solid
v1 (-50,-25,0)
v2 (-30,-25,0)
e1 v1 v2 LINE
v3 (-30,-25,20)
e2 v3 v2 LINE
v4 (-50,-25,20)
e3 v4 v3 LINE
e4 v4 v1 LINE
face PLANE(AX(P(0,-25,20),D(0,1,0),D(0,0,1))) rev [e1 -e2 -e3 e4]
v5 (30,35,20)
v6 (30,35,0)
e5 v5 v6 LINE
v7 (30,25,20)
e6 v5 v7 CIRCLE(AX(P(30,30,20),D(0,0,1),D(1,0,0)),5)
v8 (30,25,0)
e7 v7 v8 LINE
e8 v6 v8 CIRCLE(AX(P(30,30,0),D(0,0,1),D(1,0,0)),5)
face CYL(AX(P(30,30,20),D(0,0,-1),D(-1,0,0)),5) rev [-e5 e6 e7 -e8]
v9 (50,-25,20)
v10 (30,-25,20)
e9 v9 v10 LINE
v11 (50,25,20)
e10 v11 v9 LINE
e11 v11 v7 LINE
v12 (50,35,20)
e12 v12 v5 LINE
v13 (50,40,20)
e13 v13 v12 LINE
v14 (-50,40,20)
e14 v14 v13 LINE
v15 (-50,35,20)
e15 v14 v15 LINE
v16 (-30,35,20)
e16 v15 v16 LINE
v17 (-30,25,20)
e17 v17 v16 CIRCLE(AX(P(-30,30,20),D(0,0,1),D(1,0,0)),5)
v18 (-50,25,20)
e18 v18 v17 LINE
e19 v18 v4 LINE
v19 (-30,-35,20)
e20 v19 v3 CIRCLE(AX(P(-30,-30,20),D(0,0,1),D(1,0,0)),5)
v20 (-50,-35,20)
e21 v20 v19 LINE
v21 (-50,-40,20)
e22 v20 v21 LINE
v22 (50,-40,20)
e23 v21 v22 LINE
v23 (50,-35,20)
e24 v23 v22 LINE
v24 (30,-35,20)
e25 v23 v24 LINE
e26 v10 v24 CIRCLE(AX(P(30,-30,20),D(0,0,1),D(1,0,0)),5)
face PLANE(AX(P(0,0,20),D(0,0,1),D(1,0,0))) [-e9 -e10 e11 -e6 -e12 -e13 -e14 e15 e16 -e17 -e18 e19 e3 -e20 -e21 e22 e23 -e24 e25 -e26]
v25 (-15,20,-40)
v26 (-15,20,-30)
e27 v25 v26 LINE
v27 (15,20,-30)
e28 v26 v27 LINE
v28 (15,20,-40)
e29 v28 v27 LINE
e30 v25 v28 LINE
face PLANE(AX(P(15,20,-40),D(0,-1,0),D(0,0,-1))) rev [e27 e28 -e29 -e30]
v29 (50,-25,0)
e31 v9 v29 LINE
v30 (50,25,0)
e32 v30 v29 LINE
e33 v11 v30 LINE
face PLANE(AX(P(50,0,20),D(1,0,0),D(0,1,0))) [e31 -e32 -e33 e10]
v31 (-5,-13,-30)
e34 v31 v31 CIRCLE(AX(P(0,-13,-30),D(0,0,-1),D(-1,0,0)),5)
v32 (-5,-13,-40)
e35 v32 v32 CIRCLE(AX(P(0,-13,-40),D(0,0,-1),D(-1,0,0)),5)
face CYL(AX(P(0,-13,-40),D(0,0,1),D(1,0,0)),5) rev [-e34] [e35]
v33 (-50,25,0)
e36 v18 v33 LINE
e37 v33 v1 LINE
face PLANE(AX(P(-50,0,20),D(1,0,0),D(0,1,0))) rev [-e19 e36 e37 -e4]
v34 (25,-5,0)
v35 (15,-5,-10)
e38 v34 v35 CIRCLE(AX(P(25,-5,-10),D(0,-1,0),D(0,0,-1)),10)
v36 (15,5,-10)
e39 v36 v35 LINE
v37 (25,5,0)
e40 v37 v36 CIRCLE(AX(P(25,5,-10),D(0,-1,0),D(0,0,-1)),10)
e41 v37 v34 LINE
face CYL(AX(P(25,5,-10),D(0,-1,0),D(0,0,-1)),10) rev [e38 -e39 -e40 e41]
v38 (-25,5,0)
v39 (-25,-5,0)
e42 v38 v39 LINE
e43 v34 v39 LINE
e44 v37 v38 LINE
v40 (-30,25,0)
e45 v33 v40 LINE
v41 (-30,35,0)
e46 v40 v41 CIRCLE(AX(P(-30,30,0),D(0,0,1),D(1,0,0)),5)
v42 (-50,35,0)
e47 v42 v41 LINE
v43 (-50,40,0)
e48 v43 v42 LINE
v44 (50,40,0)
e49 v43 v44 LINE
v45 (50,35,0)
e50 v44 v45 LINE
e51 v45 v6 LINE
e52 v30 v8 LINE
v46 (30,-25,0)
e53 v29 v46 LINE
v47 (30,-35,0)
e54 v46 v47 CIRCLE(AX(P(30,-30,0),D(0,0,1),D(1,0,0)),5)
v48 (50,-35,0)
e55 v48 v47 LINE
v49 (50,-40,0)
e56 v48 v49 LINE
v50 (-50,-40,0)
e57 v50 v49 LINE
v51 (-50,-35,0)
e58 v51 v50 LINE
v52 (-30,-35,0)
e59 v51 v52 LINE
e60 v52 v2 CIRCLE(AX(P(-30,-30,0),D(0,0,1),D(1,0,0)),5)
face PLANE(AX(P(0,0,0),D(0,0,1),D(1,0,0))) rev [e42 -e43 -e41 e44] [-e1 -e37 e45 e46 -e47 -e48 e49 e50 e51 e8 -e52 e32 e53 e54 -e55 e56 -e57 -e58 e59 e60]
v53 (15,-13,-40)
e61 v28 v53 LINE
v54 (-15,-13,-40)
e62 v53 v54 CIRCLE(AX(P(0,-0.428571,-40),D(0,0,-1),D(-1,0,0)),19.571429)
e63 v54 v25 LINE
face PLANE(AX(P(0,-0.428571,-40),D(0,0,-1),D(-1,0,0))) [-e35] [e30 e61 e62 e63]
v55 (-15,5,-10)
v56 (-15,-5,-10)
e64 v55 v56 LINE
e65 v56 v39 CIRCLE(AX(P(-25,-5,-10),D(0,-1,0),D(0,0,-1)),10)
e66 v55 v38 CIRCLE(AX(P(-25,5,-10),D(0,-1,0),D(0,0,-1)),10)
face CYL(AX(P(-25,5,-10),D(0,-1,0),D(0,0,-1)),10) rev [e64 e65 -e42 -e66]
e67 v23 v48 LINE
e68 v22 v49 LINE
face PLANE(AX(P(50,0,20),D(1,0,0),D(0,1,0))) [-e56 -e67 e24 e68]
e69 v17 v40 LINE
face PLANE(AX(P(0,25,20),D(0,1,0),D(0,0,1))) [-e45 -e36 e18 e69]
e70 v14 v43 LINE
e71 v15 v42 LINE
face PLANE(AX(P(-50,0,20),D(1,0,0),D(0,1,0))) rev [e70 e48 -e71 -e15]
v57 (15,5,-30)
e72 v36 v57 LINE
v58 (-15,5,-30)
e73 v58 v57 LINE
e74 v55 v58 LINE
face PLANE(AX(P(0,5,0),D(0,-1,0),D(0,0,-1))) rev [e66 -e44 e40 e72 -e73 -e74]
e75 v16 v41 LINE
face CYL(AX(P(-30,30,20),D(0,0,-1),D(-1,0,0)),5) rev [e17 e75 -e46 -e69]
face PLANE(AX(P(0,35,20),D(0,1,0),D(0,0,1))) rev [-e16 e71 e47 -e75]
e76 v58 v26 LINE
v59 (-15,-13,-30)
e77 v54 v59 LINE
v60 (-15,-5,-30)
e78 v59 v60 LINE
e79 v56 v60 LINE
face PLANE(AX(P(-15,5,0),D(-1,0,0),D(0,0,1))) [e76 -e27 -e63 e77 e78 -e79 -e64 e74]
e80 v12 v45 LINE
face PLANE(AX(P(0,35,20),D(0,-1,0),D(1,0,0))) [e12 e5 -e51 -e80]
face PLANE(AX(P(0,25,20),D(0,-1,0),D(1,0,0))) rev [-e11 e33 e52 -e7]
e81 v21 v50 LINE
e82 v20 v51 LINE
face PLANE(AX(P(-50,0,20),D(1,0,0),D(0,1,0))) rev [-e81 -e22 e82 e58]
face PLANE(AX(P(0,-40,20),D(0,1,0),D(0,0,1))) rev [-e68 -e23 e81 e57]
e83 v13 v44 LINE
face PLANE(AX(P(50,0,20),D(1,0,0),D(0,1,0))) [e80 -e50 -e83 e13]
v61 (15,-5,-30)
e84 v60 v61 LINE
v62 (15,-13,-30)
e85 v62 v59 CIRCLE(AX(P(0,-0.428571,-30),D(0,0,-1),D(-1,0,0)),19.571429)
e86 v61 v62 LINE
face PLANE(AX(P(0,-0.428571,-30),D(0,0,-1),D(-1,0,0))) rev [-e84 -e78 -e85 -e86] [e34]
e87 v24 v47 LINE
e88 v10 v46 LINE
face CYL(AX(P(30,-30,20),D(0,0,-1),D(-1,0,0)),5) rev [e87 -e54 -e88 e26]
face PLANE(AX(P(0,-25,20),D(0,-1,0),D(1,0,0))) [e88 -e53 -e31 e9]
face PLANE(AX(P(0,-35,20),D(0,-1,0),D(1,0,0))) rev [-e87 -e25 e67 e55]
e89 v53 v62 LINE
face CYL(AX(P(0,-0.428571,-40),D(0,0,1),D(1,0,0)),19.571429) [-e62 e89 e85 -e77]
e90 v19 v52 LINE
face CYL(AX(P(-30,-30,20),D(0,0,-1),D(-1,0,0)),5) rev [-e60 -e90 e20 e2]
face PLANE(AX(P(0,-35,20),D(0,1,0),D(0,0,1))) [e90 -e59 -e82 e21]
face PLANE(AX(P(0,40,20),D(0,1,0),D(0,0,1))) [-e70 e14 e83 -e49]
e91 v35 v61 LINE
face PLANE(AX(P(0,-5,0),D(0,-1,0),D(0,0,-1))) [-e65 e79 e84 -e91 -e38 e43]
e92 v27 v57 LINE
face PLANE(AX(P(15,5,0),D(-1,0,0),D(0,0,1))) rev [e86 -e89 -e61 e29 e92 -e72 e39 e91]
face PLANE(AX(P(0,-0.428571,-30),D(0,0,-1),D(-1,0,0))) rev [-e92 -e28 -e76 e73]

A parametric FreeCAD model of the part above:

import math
import FreeCAD as App
import Part
import Sketcher
from FreeCAD import Vector
Q = App.Units.Quantity

doc = App.newDocument("Part")
body = doc.addObject("PartDesign::Body", "Body")

# Sketch on XY plane
sketch1 = body.newObject("Sketcher::SketchObject", "Sketch")
sketch1.AttachmentSupport = (doc.getObject("XY_Plane"), [""])
sketch1.MapMode = "FlatFace"
sketch1.addGeometry([
    Part.LineSegment(Vector(50, 40, 0), Vector(-50, 40, 0)),  # 0
    Part.LineSegment(Vector(-50, 40, 0), Vector(-50, 35, 0)),  # 1
    Part.LineSegment(Vector(-50, 35, 0), Vector(-30, 35, 0)),  # 2
    Part.ArcOfCircle(Part.Circle(Vector(-30, 30, 0), Vector(0, 0, 1), 5), math.radians(-90), math.radians(90)),  # 3
    Part.LineSegment(Vector(-30, 25, 0), Vector(-50, 25, 0)),  # 4
    Part.LineSegment(Vector(-50, 25, 0), Vector(-50, -25, 0)),  # 5
    Part.LineSegment(Vector(-50, -25, 0), Vector(-30, -25, 0)),  # 6
    Part.ArcOfCircle(Part.Circle(Vector(-30, -30, 0), Vector(0, 0, 1), 5), math.radians(-90), math.radians(90)),  # 7
    Part.LineSegment(Vector(-30, -35, 0), Vector(-50, -35, 0)),  # 8
    Part.LineSegment(Vector(-50, -35, 0), Vector(-50, -40, 0)),  # 9
    Part.LineSegment(Vector(-50, -40, 0), Vector(50, -40, 0)),  # 10
    Part.LineSegment(Vector(50, -40, 0), Vector(50, -35, 0)),  # 11
    Part.LineSegment(Vector(50, -35, 0), Vector(30, -35, 0)),  # 12
    Part.ArcOfCircle(Part.Circle(Vector(30, -30, 0), Vector(0, 0, 1), 5), math.radians(90), math.radians(270)),  # 13
    Part.LineSegment(Vector(30, -25, 0), Vector(50, -25, 0)),  # 14
    Part.LineSegment(Vector(50, -25, 0), Vector(50, 25, 0)),  # 15
    Part.LineSegment(Vector(50, 25, 0), Vector(30, 25, 0)),  # 16
    Part.ArcOfCircle(Part.Circle(Vector(30, 30, 0), Vector(0, 0, 1), 5), math.radians(90), math.radians(270)),  # 17
    Part.LineSegment(Vector(30, 35, 0), Vector(50, 35, 0)),  # 18
    Part.LineSegment(Vector(50, 35, 0), Vector(50, 40, 0)),  # 19
], False)
sketch1.addConstraint([
    Sketcher.Constraint("Coincident", 0, 2, 1, 1),
    Sketcher.Constraint("Coincident", 1, 2, 2, 1),
    Sketcher.Constraint("Tangent", 2, 2, 3, 2),
    Sketcher.Constraint("Tangent", 3, 1, 4, 1),
    Sketcher.Constraint("Coincident", 4, 2, 5, 1),
    Sketcher.Constraint("Coincident", 5, 2, 6, 1),
    Sketcher.Constraint("Tangent", 6, 2, 7, 2),
    Sketcher.Constraint("Tangent", 7, 1, 8, 1),
    Sketcher.Constraint("Coincident", 8, 2, 9, 1),
    Sketcher.Constraint("Coincident", 9, 2, 10, 1),
    Sketcher.Constraint("Coincident", 10, 2, 11, 1),
    Sketcher.Constraint("Coincident", 11, 2, 12, 1),
    Sketcher.Constraint("Tangent", 12, 2, 13, 2),
    Sketcher.Constraint("Tangent", 13, 1, 14, 1),
    Sketcher.Constraint("Coincident", 14, 2, 15, 1),
    Sketcher.Constraint("Coincident", 15, 2, 16, 1),
    Sketcher.Constraint("Tangent", 16, 2, 17, 2),
    Sketcher.Constraint("Tangent", 17, 1, 18, 1),
    Sketcher.Constraint("Coincident", 18, 2, 19, 1),
    Sketcher.Constraint("Coincident", 19, 2, 0, 1),
    Sketcher.Constraint("Horizontal", 0),
    Sketcher.Constraint("Vertical", 1),
    Sketcher.Constraint("Horizontal", 2),
    Sketcher.Constraint("Horizontal", 4),
    Sketcher.Constraint("Vertical", 5),
    Sketcher.Constraint("Horizontal", 6),
    Sketcher.Constraint("Horizontal", 8),
    Sketcher.Constraint("Vertical", 9),
    Sketcher.Constraint("Horizontal", 10),
    Sketcher.Constraint("Vertical", 11),
    Sketcher.Constraint("Horizontal", 12),
    Sketcher.Constraint("Horizontal", 14),
    Sketcher.Constraint("Vertical", 15),
    Sketcher.Constraint("Horizontal", 16),
    Sketcher.Constraint("Horizontal", 18),
    Sketcher.Constraint("Vertical", 19),
    Sketcher.Constraint("Equal", 3, 7),
    Sketcher.Constraint("Equal", 7, 13),
    Sketcher.Constraint("Equal", 13, 17),
    Sketcher.Constraint("Symmetric", 3, 3, 13, 3, -1, 1),
    Sketcher.Constraint("Symmetric", 7, 3, 17, 3, -1, 1),
    Sketcher.Constraint("Symmetric", 0, 2, 10, 2, -1, 1),
    Sketcher.Constraint("Symmetric", 7, 3, 13, 3, -2),
    Sketcher.Constraint("Vertical", 1, 2, 4, 2),
    Sketcher.Constraint("Vertical", 5, 2, 8, 2),
    Sketcher.Constraint("Vertical", 11, 2, 14, 2),
    Sketcher.Constraint("Vertical", 15, 2, 18, 2),
    Sketcher.Constraint("Radius", 3, Q("5 mm")),
    Sketcher.Constraint("DistanceX", 0, 2, 0, 1, Q("100 mm")),
    Sketcher.Constraint("DistanceX", 2, 1, 2, 2, Q("20 mm")),
    Sketcher.Constraint("DistanceY", 1, 2, 1, 1, Q("5 mm")),
    Sketcher.Constraint("DistanceY", 5, 2, 5, 1, Q("50 mm")),
])
pad1 = body.newObject("PartDesign::Pad", "Pad")
pad1.Profile = sketch1
pad1.Length = 20

# Sketch on XZ plane
sketch2 = body.newObject("Sketcher::SketchObject", "Sketch001")
sketch2.AttachmentSupport = (doc.getObject("XZ_Plane"), [""])
sketch2.MapMode = "FlatFace"
sketch2.AttachmentOffset = App.Placement(Vector(0, 0, 5), App.Rotation())
sketch2.addGeometry([
    Part.ArcOfCircle(Part.Circle(Vector(-25, -10, 0), Vector(0, 0, 1), 10), math.radians(0), math.radians(90)),  # 0
    Part.LineSegment(Vector(-15, -10, 0), Vector(-15, -30, 0)),  # 1
    Part.LineSegment(Vector(-15, -30, 0), Vector(15, -30, 0)),  # 2
    Part.LineSegment(Vector(15, -30, 0), Vector(15, -10, 0)),  # 3
    Part.ArcOfCircle(Part.Circle(Vector(25, -10, 0), Vector(0, 0, 1), 10), math.radians(90), math.radians(180)),  # 4
    Part.LineSegment(Vector(25, 0, 0), Vector(-25, 0, 0)),  # 5
], False)
sketch2.addConstraint([
    Sketcher.Constraint("Tangent", 0, 1, 1, 1),
    Sketcher.Constraint("Coincident", 1, 2, 2, 1),
    Sketcher.Constraint("Coincident", 2, 2, 3, 1),
    Sketcher.Constraint("Tangent", 3, 2, 4, 2),
    Sketcher.Constraint("Tangent", 4, 1, 5, 1),
    Sketcher.Constraint("Tangent", 5, 2, 0, 2),
    Sketcher.Constraint("Vertical", 1),
    Sketcher.Constraint("Horizontal", 2),
    Sketcher.Constraint("Vertical", 3),
    Sketcher.Constraint("Horizontal", 5),
    Sketcher.Constraint("Equal", 0, 4),
    Sketcher.Constraint("Symmetric", 4, 1, 5, 2, -1, 1),
    Sketcher.Constraint("Radius", 0, Q("10 mm")),
    Sketcher.Constraint("DistanceX", 2, 1, 2, 2, Q("30 mm")),
    Sketcher.Constraint("DistanceY", 1, 2, 1, 1, Q("20 mm")),
])
pad2 = body.newObject("PartDesign::Pad", "Pad001")
pad2.Profile = sketch2
pad2.Length = 10
pad2.Reversed = True

# Sketch on XY plane
sketch3 = body.newObject("Sketcher::SketchObject", "Sketch002")
sketch3.AttachmentSupport = (doc.getObject("XY_Plane"), [""])
sketch3.MapMode = "FlatFace"
sketch3.AttachmentOffset = App.Placement(Vector(0, 0, -30), App.Rotation())
sketch3.addGeometry([
    Part.LineSegment(Vector(-15, 20, 0), Vector(15, 20, 0)),  # 0
    Part.LineSegment(Vector(15, 20, 0), Vector(15, -13, 0)),  # 1
    Part.ArcOfCircle(Part.Circle(Vector(0, 0, 0), Vector(0, 0, 1), 20), math.radians(-140), math.radians(-40)),  # 2
    Part.LineSegment(Vector(-15, -13, 0), Vector(-15, 20, 0)),  # 3
    Part.Circle(Vector(0, -13, 0), Vector(0, 0, 1), 5),  # 4
], False)
sketch3.addConstraint([
    Sketcher.Constraint("Coincident", 0, 2, 1, 1),
    Sketcher.Constraint("Coincident", 1, 2, 2, 2),
    Sketcher.Constraint("Coincident", 2, 1, 3, 1),
    Sketcher.Constraint("Coincident", 3, 2, 0, 1),
    Sketcher.Constraint("Horizontal", 0),
    Sketcher.Constraint("Vertical", 1),
    Sketcher.Constraint("Vertical", 3),
    Sketcher.Constraint("Symmetric", 1, 2, 2, 1, -2),
    Sketcher.Constraint("PointOnObject", 4, 3, -2),
    Sketcher.Constraint("Horizontal", 4, 3, 1, 2),
    Sketcher.Constraint("Diameter", 4, Q("10 mm")),
    Sketcher.Constraint("DistanceX", 0, 1, 0, 2, Q("30 mm")),
    Sketcher.Constraint("DistanceY", 1, 2, 1, 1, Q("33 mm")),
    Sketcher.Constraint("DistanceY", 4, 3, -1, 1, Q("13 mm")),
    Sketcher.Constraint("Radius", 2, Q("19.571429 mm")),
])
pad3 = body.newObject("PartDesign::Pad", "Pad002")
pad3.Profile = sketch3
pad3.Length = 10
pad3.Reversed = True

doc.recompute()
